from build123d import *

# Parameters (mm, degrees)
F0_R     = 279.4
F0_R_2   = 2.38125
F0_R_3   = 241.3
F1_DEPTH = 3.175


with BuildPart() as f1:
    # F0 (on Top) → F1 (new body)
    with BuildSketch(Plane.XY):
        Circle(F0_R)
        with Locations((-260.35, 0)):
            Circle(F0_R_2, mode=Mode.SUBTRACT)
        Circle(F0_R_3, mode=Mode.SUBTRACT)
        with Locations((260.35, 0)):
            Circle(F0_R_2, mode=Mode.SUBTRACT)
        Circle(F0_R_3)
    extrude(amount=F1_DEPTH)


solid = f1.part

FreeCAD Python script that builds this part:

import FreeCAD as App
import Part
import Sketcher
Q = App.Units.Quantity

doc = App.newDocument("Part")
body = doc.addObject("PartDesign::Body", "Body")

# Sketch on XY plane
sketch1 = doc.addObject("Sketcher::SketchObject", "Sketch")
body.addObject(sketch1)
sketch1.AttachmentSupport = (doc.XY_Plane, [""])
sketch1.MapMode = "FlatFace"
sketch1.addGeometry([
    Part.Circle(App.Vector(0, 0, 0), App.Vector(0, 0, 1), 279.4),
    Part.Circle(App.Vector(-260.4, 0, 0), App.Vector(0, 0, 1), 2.4),
    Part.Circle(App.Vector(260.4, 0, 0), App.Vector(0, 0, 1), 2.4),
], False)
sketch1.addConstraint([
    Sketcher.Constraint("Coincident", 0, 3, -1, 1),
    Sketcher.Constraint("Equal", 1, 2),
    Sketcher.Constraint("Symmetric", 1, 3, 2, 3, -1, 1),
    Sketcher.Constraint("PointOnObject", 1, 3, -1),
    Sketcher.Constraint("Diameter", 0, Q("22 in")),
    Sketcher.Constraint("Diameter", 1, Q("0.1875 in")),
    Sketcher.Constraint("DistanceX", 1, 3, 2, 3, Q("20.5 in")),
])
pad1 = doc.addObject("PartDesign::Pad", "Pad")
body.addObject(pad1)
pad1.Profile = sketch1
pad1.Length = Q("0.125 in")

doc.recompute()
